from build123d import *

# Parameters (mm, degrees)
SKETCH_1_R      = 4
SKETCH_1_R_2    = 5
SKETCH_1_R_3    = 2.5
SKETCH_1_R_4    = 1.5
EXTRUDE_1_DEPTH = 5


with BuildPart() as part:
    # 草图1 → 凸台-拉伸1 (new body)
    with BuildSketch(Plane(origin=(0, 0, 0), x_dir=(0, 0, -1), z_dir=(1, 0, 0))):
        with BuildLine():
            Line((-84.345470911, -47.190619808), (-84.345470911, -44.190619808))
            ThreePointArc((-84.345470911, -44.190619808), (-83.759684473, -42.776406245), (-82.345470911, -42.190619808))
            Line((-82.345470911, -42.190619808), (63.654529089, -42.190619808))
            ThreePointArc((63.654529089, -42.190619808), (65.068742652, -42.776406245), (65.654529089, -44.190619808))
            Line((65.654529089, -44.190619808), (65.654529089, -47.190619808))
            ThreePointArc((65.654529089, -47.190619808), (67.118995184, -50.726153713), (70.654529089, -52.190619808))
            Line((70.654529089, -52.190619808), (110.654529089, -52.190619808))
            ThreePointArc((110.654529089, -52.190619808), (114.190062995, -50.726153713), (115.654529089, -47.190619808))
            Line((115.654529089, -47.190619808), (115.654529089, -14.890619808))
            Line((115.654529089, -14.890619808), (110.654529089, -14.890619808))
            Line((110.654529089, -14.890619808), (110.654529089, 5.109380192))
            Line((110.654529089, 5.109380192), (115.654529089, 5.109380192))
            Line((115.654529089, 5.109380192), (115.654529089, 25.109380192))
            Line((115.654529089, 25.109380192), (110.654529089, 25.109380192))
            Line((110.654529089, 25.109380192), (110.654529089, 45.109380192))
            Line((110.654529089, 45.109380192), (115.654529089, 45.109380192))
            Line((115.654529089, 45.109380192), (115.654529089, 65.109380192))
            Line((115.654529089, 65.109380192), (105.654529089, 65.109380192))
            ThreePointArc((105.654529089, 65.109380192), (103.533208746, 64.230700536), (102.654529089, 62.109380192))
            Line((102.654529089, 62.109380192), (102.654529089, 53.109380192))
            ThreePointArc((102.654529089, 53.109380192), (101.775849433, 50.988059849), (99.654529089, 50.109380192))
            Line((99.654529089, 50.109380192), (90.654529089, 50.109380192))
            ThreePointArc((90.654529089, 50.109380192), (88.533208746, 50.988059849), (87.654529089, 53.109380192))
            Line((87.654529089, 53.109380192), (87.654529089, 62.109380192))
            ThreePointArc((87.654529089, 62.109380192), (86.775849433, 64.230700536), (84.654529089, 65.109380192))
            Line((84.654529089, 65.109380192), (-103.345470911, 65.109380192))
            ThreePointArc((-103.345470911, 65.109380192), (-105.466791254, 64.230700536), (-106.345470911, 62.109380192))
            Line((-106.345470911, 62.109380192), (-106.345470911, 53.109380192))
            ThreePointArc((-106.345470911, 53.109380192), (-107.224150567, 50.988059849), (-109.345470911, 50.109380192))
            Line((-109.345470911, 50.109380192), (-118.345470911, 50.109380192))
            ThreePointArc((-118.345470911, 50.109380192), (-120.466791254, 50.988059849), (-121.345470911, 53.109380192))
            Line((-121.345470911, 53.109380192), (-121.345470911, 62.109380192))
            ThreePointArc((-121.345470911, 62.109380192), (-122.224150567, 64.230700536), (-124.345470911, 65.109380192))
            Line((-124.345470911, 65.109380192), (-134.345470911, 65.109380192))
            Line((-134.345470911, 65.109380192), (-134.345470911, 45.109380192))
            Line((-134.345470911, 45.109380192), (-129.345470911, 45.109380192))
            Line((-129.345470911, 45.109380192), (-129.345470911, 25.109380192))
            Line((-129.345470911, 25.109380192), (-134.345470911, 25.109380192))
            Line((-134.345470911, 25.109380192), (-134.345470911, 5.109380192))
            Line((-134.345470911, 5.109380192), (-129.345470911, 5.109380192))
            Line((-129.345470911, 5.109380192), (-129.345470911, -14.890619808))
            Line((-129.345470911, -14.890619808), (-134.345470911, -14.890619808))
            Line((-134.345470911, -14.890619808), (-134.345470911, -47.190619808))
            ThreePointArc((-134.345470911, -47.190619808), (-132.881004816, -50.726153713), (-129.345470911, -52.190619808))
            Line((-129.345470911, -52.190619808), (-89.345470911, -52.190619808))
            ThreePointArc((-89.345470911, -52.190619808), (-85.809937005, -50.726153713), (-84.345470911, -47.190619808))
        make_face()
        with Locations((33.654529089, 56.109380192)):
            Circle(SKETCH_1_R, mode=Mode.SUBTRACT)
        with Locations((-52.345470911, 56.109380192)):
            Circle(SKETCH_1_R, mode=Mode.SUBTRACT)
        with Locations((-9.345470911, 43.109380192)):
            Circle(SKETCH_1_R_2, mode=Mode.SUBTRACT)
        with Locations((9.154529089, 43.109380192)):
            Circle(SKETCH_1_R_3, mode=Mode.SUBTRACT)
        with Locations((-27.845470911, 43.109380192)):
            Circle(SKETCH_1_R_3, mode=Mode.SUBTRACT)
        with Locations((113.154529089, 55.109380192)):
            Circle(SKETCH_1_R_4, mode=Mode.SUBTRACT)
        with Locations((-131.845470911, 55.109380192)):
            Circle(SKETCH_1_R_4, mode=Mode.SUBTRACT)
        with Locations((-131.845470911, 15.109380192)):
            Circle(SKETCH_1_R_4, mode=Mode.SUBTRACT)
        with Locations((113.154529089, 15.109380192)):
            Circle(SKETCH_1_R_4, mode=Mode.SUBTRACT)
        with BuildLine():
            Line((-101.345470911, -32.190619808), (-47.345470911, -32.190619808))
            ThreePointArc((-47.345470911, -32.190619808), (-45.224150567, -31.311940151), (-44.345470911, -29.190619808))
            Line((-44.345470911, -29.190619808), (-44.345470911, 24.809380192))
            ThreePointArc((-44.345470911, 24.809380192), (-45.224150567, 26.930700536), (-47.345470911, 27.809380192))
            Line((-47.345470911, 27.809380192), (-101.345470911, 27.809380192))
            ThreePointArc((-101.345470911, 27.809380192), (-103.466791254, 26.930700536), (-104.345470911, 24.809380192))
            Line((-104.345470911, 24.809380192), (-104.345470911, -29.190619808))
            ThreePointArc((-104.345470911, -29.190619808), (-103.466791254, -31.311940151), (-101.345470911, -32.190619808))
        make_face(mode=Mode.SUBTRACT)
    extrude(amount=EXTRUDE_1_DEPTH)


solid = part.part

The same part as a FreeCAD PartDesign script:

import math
import FreeCAD as App
import Part
import Sketcher

V = App.Vector

doc = App.newDocument("Part")
body = doc.addObject("PartDesign::Body", "Body")

# Sketch on YZ plane
sketch1 = doc.addObject("Sketcher::SketchObject", "Sketch")
body.addObject(sketch1)
sketch1.AttachmentSupport = (doc.YZ_Plane, [""])
sketch1.MapMode = "FlatFace"
sketch1.addGeometry([
    Part.LineSegment(V(-47.19062, 84.345471, 0), V(-44.19062, 84.345471, 0)),  # 0
    Part.ArcOfCircle(Part.Circle(V(-44.19062, 82.345471, 0), V(0, 0, 1), 2), math.radians(0), math.radians(90)),  # 1
    Part.LineSegment(V(-42.19062, 82.345471, 0), V(-42.19062, -63.654529, 0)),  # 2
    Part.ArcOfCircle(Part.Circle(V(-44.19062, -63.654529, 0), V(0, 0, 1), 2), math.radians(-90), math.radians(0)),  # 3
    Part.LineSegment(V(-44.19062, -65.654529, 0), V(-47.19062, -65.654529, 0)),  # 4
    Part.ArcOfCircle(Part.Circle(V(-47.19062, -70.654529, 0), V(0, 0, 1), 5), math.radians(90), math.radians(180)),  # 5
    Part.LineSegment(V(-52.19062, -70.654529, 0), V(-52.19062, -110.654529, 0)),  # 6
    Part.ArcOfCircle(Part.Circle(V(-47.19062, -110.654529, 0), V(0, 0, 1), 5), math.radians(-180), math.radians(-90)),  # 7
    Part.LineSegment(V(-47.19062, -115.654529, 0), V(-14.89062, -115.654529, 0)),  # 8
    Part.LineSegment(V(-14.89062, -115.654529, 0), V(-14.89062, -110.654529, 0)),  # 9
    Part.LineSegment(V(-14.89062, -110.654529, 0), V(5.10938, -110.654529, 0)),  # 10
    Part.LineSegment(V(5.10938, -110.654529, 0), V(5.10938, -115.654529, 0)),  # 11
    Part.LineSegment(V(5.10938, -115.654529, 0), V(25.10938, -115.654529, 0)),  # 12
    Part.LineSegment(V(25.10938, -115.654529, 0), V(25.10938, -110.654529, 0)),  # 13
    Part.LineSegment(V(25.10938, -110.654529, 0), V(45.10938, -110.654529, 0)),  # 14
    Part.LineSegment(V(45.10938, -110.654529, 0), V(45.10938, -115.654529, 0)),  # 15
    Part.LineSegment(V(45.10938, -115.654529, 0), V(65.10938, -115.654529, 0)),  # 16
    Part.LineSegment(V(65.10938, -115.654529, 0), V(65.10938, -105.654529, 0)),  # 17
    Part.ArcOfCircle(Part.Circle(V(62.10938, -105.654529, 0), V(0, 0, 1), 3), math.radians(0), math.radians(90)),  # 18
    Part.LineSegment(V(62.10938, -102.654529, 0), V(53.10938, -102.654529, 0)),  # 19
    Part.ArcOfCircle(Part.Circle(V(53.10938, -99.654529, 0), V(0, 0, 1), 3), math.radians(180), math.radians(270)),  # 20
    Part.LineSegment(V(50.10938, -99.654529, 0), V(50.10938, -90.654529, 0)),  # 21
    Part.ArcOfCircle(Part.Circle(V(53.10938, -90.654529, 0), V(0, 0, 1), 3), math.radians(90), math.radians(180)),  # 22
    Part.LineSegment(V(53.10938, -87.654529, 0), V(62.10938, -87.654529, 0)),  # 23
    Part.ArcOfCircle(Part.Circle(V(62.10938, -84.654529, 0), V(0, 0, 1), 3), math.radians(-90), math.radians(0)),  # 24
    Part.LineSegment(V(65.10938, -84.654529, 0), V(65.10938, 103.345471, 0)),  # 25
    Part.ArcOfCircle(Part.Circle(V(62.10938, 103.345471, 0), V(0, 0, 1), 3), math.radians(0), math.radians(90)),  # 26
    Part.LineSegment(V(62.10938, 106.345471, 0), V(53.10938, 106.345471, 0)),  # 27
    Part.ArcOfCircle(Part.Circle(V(53.10938, 109.345471, 0), V(0, 0, 1), 3), math.radians(180), math.radians(270)),  # 28
    Part.LineSegment(V(50.10938, 109.345471, 0), V(50.10938, 118.345471, 0)),  # 29
    Part.ArcOfCircle(Part.Circle(V(53.10938, 118.345471, 0), V(0, 0, 1), 3), math.radians(90), math.radians(180)),  # 30
    Part.LineSegment(V(53.10938, 121.345471, 0), V(62.10938, 121.345471, 0)),  # 31
    Part.ArcOfCircle(Part.Circle(V(62.10938, 124.345471, 0), V(0, 0, 1), 3), math.radians(-90), math.radians(0)),  # 32
    Part.LineSegment(V(65.10938, 124.345471, 0), V(65.10938, 134.345471, 0)),  # 33
    Part.LineSegment(V(65.10938, 134.345471, 0), V(45.10938, 134.345471, 0)),  # 34
    Part.LineSegment(V(45.10938, 134.345471, 0), V(45.10938, 129.345471, 0)),  # 35
    Part.LineSegment(V(45.10938, 129.345471, 0), V(25.10938, 129.345471, 0)),  # 36
    Part.LineSegment(V(25.10938, 129.345471, 0), V(25.10938, 134.345471, 0)),  # 37
    Part.LineSegment(V(25.10938, 134.345471, 0), V(5.10938, 134.345471, 0)),  # 38
    Part.LineSegment(V(5.10938, 134.345471, 0), V(5.10938, 129.345471, 0)),  # 39
    Part.LineSegment(V(5.10938, 129.345471, 0), V(-14.89062, 129.345471, 0)),  # 40
    Part.LineSegment(V(-14.89062, 129.345471, 0), V(-14.89062, 134.345471, 0)),  # 41
    Part.LineSegment(V(-14.89062, 134.345471, 0), V(-47.19062, 134.345471, 0)),  # 42
    Part.ArcOfCircle(Part.Circle(V(-47.19062, 129.345471, 0), V(0, 0, 1), 5), math.radians(90), math.radians(180)),  # 43
    Part.LineSegment(V(-52.19062, 129.345471, 0), V(-52.19062, 89.345471, 0)),  # 44
    Part.ArcOfCircle(Part.Circle(V(-47.19062, 89.345471, 0), V(0, 0, 1), 5), math.radians(-180), math.radians(-90)),  # 45
    Part.LineSegment(V(-32.19062, 47.345471, 0), V(-32.19062, 101.345471, 0)),  # 46
    Part.ArcOfCircle(Part.Circle(V(-29.19062, 101.345471, 0), V(0, 0, 1), 3), math.radians(90), math.radians(180)),  # 47
    Part.LineSegment(V(-29.19062, 104.345471, 0), V(24.80938, 104.345471, 0)),  # 48
    Part.ArcOfCircle(Part.Circle(V(24.80938, 101.345471, 0), V(0, 0, 1), 3), math.radians(0), math.radians(90)),  # 49
    Part.LineSegment(V(27.80938, 101.345471, 0), V(27.80938, 47.345471, 0)),  # 50
    Part.ArcOfCircle(Part.Circle(V(24.80938, 47.345471, 0), V(0, 0, 1), 3), math.radians(-90), math.radians(0)),  # 51
    Part.LineSegment(V(24.80938, 44.345471, 0), V(-29.19062, 44.345471, 0)),  # 52
    Part.ArcOfCircle(Part.Circle(V(-29.19062, 47.345471, 0), V(0, 0, 1), 3), math.radians(180), math.radians(270)),  # 53
    Part.Circle(V(15.10938, 131.845471, 0), V(0, 0, 1), 1.5),  # 54
    Part.Circle(V(55.10938, 131.845471, 0), V(0, 0, 1), 1.5),  # 55
    Part.Circle(V(43.10938, 27.845471, 0), V(0, 0, 1), 2.5),  # 56
    Part.Circle(V(56.10938, 52.345471, 0), V(0, 0, 1), 4),  # 57
    Part.Circle(V(15.10938, -113.154529, 0), V(0, 0, 1), 1.5),  # 58
    Part.Circle(V(43.10938, 9.345471, 0), V(0, 0, 1), 5),  # 59
    Part.Circle(V(43.10938, -9.154529, 0), V(0, 0, 1), 2.5),  # 60
    Part.Circle(V(56.10938, -33.654529, 0), V(0, 0, 1), 4),  # 61
    Part.Circle(V(55.10938, -113.154529, 0), V(0, 0, 1), 1.5),  # 62
], False)
sketch1.addConstraint([
    Sketcher.Constraint("Tangent", 0, 2, 1, 2),
    Sketcher.Constraint("Tangent", 1, 1, 2, 1),
    Sketcher.Constraint("Tangent", 2, 2, 3, 2),
    Sketcher.Constraint("Tangent", 3, 1, 4, 1),
    Sketcher.Constraint("Tangent", 4, 2, 5, 1),
    Sketcher.Constraint("Tangent", 5, 2, 6, 1),
    Sketcher.Constraint("Tangent", 6, 2, 7, 1),
    Sketcher.Constraint("Tangent", 7, 2, 8, 1),
    Sketcher.Constraint("Coincident", 8, 2, 9, 1),
    Sketcher.Constraint("Coincident", 9, 2, 10, 1),
    Sketcher.Constraint("Coincident", 10, 2, 11, 1),
    Sketcher.Constraint("Coincident", 11, 2, 12, 1),
    Sketcher.Constraint("Coincident", 12, 2, 13, 1),
    Sketcher.Constraint("Coincident", 13, 2, 14, 1),
    Sketcher.Constraint("Coincident", 14, 2, 15, 1),
    Sketcher.Constraint("Coincident", 15, 2, 16, 1),
    Sketcher.Constraint("Coincident", 16, 2, 17, 1),
    Sketcher.Constraint("Tangent", 17, 2, 18, 1),
    Sketcher.Constraint("Tangent", 18, 2, 19, 1),
    Sketcher.Constraint("Tangent", 19, 2, 20, 2),
    Sketcher.Constraint("Tangent", 20, 1, 21, 1),
    Sketcher.Constraint("Tangent", 21, 2, 22, 2),
    Sketcher.Constraint("Tangent", 22, 1, 23, 1),
    Sketcher.Constraint("Tangent", 23, 2, 24, 1),
    Sketcher.Constraint("Tangent", 24, 2, 25, 1),
    Sketcher.Constraint("Tangent", 25, 2, 26, 1),
    Sketcher.Constraint("Tangent", 26, 2, 27, 1),
    Sketcher.Constraint("Tangent", 27, 2, 28, 2),
    Sketcher.Constraint("Tangent", 28, 1, 29, 1),
    Sketcher.Constraint("Tangent", 29, 2, 30, 2),
    Sketcher.Constraint("Tangent", 30, 1, 31, 1),
    Sketcher.Constraint("Tangent", 31, 2, 32, 1),
    Sketcher.Constraint("Tangent", 32, 2, 33, 1),
    Sketcher.Constraint("Coincident", 33, 2, 34, 1),
    Sketcher.Constraint("Coincident", 34, 2, 35, 1),
    Sketcher.Constraint("Coincident", 35, 2, 36, 1),
    Sketcher.Constraint("Coincident", 36, 2, 37, 1),
    Sketcher.Constraint("Coincident", 37, 2, 38, 1),
    Sketcher.Constraint("Coincident", 38, 2, 39, 1),
    Sketcher.Constraint("Coincident", 39, 2, 40, 1),
    Sketcher.Constraint("Coincident", 40, 2, 41, 1),
    Sketcher.Constraint("Coincident", 41, 2, 42, 1),
    Sketcher.Constraint("Tangent", 42, 2, 43, 1),
    Sketcher.Constraint("Tangent", 43, 2, 44, 1),
    Sketcher.Constraint("Tangent", 44, 2, 45, 1),
    Sketcher.Constraint("Tangent", 45, 2, 0, 1),
    Sketcher.Constraint("Tangent", 46, 2, 47, 2),
    Sketcher.Constraint("Tangent", 47, 1, 48, 1),
    Sketcher.Constraint("Tangent", 48, 2, 49, 2),
    Sketcher.Constraint("Tangent", 49, 1, 50, 1),
    Sketcher.Constraint("Tangent", 50, 2, 51, 2),
    Sketcher.Constraint("Tangent", 51, 1, 52, 1),
    Sketcher.Constraint("Tangent", 52, 2, 53, 2),
    Sketcher.Constraint("Tangent", 53, 1, 46, 1),
    Sketcher.Constraint("Horizontal", 0),
    Sketcher.Constraint("Vertical", 2),
    Sketcher.Constraint("Horizontal", 4),
    Sketcher.Constraint("Vertical", 6),
    Sketcher.Constraint("Horizontal", 8),
    Sketcher.Constraint("Vertical", 9),
    Sketcher.Constraint("Horizontal", 10),
    Sketcher.Constraint("Vertical", 11),
    Sketcher.Constraint("Horizontal", 12),
    Sketcher.Constraint("Vertical", 13),
    Sketcher.Constraint("Horizontal", 14),
    Sketcher.Constraint("Vertical", 15),
    Sketcher.Constraint("Horizontal", 16),
    Sketcher.Constraint("Vertical", 17),
    Sketcher.Constraint("Horizontal", 19),
    Sketcher.Constraint("Vertical", 21),
    Sketcher.Constraint("Horizontal", 23),
    Sketcher.Constraint("Vertical", 25),
    Sketcher.Constraint("Horizontal", 27),
    Sketcher.Constraint("Vertical", 29),
    Sketcher.Constraint("Horizontal", 31),
    Sketcher.Constraint("Vertical", 33),
    Sketcher.Constraint("Horizontal", 34),
    Sketcher.Constraint("Vertical", 35),
    Sketcher.Constraint("Horizontal", 36),
    Sketcher.Constraint("Vertical", 37),
    Sketcher.Constraint("Horizontal", 38),
    Sketcher.Constraint("Vertical", 39),
    Sketcher.Constraint("Horizontal", 40),
    Sketcher.Constraint("Vertical", 41),
    Sketcher.Constraint("Horizontal", 42),
    Sketcher.Constraint("Vertical", 44),
    Sketcher.Constraint("Vertical", 46),
    Sketcher.Constraint("Horizontal", 48),
    Sketcher.Constraint("Vertical", 50),
    Sketcher.Constraint("Horizontal", 52),
    Sketcher.Constraint("Equal", 1, 3),
    Sketcher.Constraint("Equal", 5, 7),
    Sketcher.Constraint("Equal", 18, 20),
    Sketcher.Constraint("Equal", 20, 22),
    Sketcher.Constraint("Equal", 22, 24),
    Sketcher.Constraint("Equal", 24, 26),
    Sketcher.Constraint("Equal", 26, 28),
    Sketcher.Constraint("Equal", 28, 30),
    Sketcher.Constraint("Equal", 30, 32),
    Sketcher.Constraint("Equal", 7, 43),
    Sketcher.Constraint("Equal", 43, 45),
    Sketcher.Constraint("Equal", 32, 47),
    Sketcher.Constraint("Equal", 47, 49),
    Sketcher.Constraint("Equal", 49, 51),
    Sketcher.Constraint("Equal", 51, 53),
    Sketcher.Constraint("Equal", 54, 55),
    Sketcher.Constraint("Equal", 55, 58),
    Sketcher.Constraint("Equal", 45, 59),
    Sketcher.Constraint("Equal", 56, 60),
    Sketcher.Constraint("Equal", 57, 61),
    Sketcher.Constraint("Equal", 58, 62),
    Sketcher.Constraint("Horizontal", 54, 3, 55, 3),
    Sketcher.Constraint("Horizontal", 58, 3, 62, 3),
    Sketcher.Constraint("Horizontal", 6, 2, 9, 2),
    Sketcher.Constraint("Horizontal", 8, 2, 11, 2),
    Sketcher.Constraint("Horizontal", 10, 2, 13, 2),
    Sketcher.Constraint("Horizontal", 12, 2, 15, 2),
    Sketcher.Constraint("Horizontal", 43, 3, 35, 2),
    Sketcher.Constraint("Horizontal", 34, 2, 37, 2),
    Sketcher.Constraint("Horizontal", 36, 2, 39, 2),
    Sketcher.Constraint("Horizontal", 38, 2, 41, 2),
    Sketcher.Constraint("Vertical", 18, 3, 24, 3),
    Sketcher.Constraint("Vertical", 22, 3, 28, 3),
    Sketcher.Constraint("Vertical", 26, 3, 32, 3),
    Sketcher.Constraint("Vertical", 7, 3, 43, 3),
    Sketcher.Constraint("Vertical", 54, 3, 58, 3),
    Sketcher.Constraint("Vertical", 56, 3, 59, 3),
    Sketcher.Constraint("Vertical", 59, 3, 60, 3),
    Sketcher.Constraint("Vertical", 57, 3, 61, 3),
    Sketcher.Constraint("Vertical", 55, 3, 62, 3),
    Sketcher.Constraint("Vertical", 15, 2, 34, 2),
    Sketcher.Constraint("Vertical", 13, 2, 36, 2),
    Sketcher.Constraint("Vertical", 11, 2, 38, 2),
    Sketcher.Constraint("Vertical", 9, 2, 40, 2),
    Sketcher.Constraint("Equal", 10, 12),
    Sketcher.Constraint("Equal", 12, 14),
    Sketcher.Constraint("Equal", 14, 16),
    Sketcher.Constraint("Equal", 31, 21),
    Sketcher.Constraint("Equal", 21, 29),
    Sketcher.Constraint("Equal", 17, 33),
    Sketcher.Constraint("Equal", 6, 44),
    Sketcher.Constraint("Equal", 52, 46),
    Sketcher.Constraint("Diameter", 54, 3.0),
    Sketcher.Constraint("Diameter", 56, 5.0),
    Sketcher.Constraint("Diameter", 57, 8.0),
    Sketcher.Constraint("Diameter", 59, 10.0),
    Sketcher.Constraint("Radius", 1, 2.0),
    Sketcher.Constraint("Radius", 18, 3.0),
    Sketcher.Constraint("DistanceX", 0, 1, 0, 2, 3.0),
    Sketcher.Constraint("DistanceX", 10, 1, 10, 2, 20.0),
    Sketcher.Constraint("DistanceX", 19, 2, 19, 1, 9.0),
    Sketcher.Constraint("DistanceX", 48, 1, 48, 2, 54.0),
    Sketcher.Constraint("DistanceY", 2, 2, 2, 1, 146.0),
    Sketcher.Constraint("DistanceY", 6, 2, 6, 1, 40.0),
    Sketcher.Constraint("DistanceY", 17, 1, 17, 2, 10.0),
    Sketcher.Constraint("DistanceX", 8, 1, 8, 2, 32.3),
    Sketcher.Constraint("DistanceX", 1, 3, -1, 1, 44.19062),
    Sketcher.Constraint("DistanceY", -1, 1, 1, 3, 82.345471),
    Sketcher.Constraint("DistanceX", 47, 3, -1, 1, 29.19062),
    Sketcher.Constraint("DistanceY", -1, 1, 47, 3, 101.345471),
    Sketcher.Constraint("DistanceX", -1, 1, 54, 3, 15.10938),
    Sketcher.Constraint("DistanceY", -1, 1, 54, 3, 131.845471),
    Sketcher.Constraint("DistanceX", -1, 1, 55, 3, 55.10938),
    Sketcher.Constraint("DistanceX", -1, 1, 56, 3, 43.10938),
    Sketcher.Constraint("DistanceY", -1, 1, 56, 3, 27.845471),
    Sketcher.Constraint("DistanceX", -1, 1, 57, 3, 56.10938),
    Sketcher.Constraint("DistanceY", -1, 1, 57, 3, 52.345471),
    Sketcher.Constraint("DistanceY", 58, 3, -1, 1, 113.154529),
    Sketcher.Constraint("DistanceY", -1, 1, 59, 3, 9.345471),
    Sketcher.Constraint("DistanceY", 60, 3, -1, 1, 9.154529),
    Sketcher.Constraint("DistanceY", 61, 3, -1, 1, 33.654529),
])
pad1 = doc.addObject("PartDesign::Pad", "Pad")
body.addObject(pad1)
pad1.Profile = sketch1
pad1.Length = 5

doc.recompute()
